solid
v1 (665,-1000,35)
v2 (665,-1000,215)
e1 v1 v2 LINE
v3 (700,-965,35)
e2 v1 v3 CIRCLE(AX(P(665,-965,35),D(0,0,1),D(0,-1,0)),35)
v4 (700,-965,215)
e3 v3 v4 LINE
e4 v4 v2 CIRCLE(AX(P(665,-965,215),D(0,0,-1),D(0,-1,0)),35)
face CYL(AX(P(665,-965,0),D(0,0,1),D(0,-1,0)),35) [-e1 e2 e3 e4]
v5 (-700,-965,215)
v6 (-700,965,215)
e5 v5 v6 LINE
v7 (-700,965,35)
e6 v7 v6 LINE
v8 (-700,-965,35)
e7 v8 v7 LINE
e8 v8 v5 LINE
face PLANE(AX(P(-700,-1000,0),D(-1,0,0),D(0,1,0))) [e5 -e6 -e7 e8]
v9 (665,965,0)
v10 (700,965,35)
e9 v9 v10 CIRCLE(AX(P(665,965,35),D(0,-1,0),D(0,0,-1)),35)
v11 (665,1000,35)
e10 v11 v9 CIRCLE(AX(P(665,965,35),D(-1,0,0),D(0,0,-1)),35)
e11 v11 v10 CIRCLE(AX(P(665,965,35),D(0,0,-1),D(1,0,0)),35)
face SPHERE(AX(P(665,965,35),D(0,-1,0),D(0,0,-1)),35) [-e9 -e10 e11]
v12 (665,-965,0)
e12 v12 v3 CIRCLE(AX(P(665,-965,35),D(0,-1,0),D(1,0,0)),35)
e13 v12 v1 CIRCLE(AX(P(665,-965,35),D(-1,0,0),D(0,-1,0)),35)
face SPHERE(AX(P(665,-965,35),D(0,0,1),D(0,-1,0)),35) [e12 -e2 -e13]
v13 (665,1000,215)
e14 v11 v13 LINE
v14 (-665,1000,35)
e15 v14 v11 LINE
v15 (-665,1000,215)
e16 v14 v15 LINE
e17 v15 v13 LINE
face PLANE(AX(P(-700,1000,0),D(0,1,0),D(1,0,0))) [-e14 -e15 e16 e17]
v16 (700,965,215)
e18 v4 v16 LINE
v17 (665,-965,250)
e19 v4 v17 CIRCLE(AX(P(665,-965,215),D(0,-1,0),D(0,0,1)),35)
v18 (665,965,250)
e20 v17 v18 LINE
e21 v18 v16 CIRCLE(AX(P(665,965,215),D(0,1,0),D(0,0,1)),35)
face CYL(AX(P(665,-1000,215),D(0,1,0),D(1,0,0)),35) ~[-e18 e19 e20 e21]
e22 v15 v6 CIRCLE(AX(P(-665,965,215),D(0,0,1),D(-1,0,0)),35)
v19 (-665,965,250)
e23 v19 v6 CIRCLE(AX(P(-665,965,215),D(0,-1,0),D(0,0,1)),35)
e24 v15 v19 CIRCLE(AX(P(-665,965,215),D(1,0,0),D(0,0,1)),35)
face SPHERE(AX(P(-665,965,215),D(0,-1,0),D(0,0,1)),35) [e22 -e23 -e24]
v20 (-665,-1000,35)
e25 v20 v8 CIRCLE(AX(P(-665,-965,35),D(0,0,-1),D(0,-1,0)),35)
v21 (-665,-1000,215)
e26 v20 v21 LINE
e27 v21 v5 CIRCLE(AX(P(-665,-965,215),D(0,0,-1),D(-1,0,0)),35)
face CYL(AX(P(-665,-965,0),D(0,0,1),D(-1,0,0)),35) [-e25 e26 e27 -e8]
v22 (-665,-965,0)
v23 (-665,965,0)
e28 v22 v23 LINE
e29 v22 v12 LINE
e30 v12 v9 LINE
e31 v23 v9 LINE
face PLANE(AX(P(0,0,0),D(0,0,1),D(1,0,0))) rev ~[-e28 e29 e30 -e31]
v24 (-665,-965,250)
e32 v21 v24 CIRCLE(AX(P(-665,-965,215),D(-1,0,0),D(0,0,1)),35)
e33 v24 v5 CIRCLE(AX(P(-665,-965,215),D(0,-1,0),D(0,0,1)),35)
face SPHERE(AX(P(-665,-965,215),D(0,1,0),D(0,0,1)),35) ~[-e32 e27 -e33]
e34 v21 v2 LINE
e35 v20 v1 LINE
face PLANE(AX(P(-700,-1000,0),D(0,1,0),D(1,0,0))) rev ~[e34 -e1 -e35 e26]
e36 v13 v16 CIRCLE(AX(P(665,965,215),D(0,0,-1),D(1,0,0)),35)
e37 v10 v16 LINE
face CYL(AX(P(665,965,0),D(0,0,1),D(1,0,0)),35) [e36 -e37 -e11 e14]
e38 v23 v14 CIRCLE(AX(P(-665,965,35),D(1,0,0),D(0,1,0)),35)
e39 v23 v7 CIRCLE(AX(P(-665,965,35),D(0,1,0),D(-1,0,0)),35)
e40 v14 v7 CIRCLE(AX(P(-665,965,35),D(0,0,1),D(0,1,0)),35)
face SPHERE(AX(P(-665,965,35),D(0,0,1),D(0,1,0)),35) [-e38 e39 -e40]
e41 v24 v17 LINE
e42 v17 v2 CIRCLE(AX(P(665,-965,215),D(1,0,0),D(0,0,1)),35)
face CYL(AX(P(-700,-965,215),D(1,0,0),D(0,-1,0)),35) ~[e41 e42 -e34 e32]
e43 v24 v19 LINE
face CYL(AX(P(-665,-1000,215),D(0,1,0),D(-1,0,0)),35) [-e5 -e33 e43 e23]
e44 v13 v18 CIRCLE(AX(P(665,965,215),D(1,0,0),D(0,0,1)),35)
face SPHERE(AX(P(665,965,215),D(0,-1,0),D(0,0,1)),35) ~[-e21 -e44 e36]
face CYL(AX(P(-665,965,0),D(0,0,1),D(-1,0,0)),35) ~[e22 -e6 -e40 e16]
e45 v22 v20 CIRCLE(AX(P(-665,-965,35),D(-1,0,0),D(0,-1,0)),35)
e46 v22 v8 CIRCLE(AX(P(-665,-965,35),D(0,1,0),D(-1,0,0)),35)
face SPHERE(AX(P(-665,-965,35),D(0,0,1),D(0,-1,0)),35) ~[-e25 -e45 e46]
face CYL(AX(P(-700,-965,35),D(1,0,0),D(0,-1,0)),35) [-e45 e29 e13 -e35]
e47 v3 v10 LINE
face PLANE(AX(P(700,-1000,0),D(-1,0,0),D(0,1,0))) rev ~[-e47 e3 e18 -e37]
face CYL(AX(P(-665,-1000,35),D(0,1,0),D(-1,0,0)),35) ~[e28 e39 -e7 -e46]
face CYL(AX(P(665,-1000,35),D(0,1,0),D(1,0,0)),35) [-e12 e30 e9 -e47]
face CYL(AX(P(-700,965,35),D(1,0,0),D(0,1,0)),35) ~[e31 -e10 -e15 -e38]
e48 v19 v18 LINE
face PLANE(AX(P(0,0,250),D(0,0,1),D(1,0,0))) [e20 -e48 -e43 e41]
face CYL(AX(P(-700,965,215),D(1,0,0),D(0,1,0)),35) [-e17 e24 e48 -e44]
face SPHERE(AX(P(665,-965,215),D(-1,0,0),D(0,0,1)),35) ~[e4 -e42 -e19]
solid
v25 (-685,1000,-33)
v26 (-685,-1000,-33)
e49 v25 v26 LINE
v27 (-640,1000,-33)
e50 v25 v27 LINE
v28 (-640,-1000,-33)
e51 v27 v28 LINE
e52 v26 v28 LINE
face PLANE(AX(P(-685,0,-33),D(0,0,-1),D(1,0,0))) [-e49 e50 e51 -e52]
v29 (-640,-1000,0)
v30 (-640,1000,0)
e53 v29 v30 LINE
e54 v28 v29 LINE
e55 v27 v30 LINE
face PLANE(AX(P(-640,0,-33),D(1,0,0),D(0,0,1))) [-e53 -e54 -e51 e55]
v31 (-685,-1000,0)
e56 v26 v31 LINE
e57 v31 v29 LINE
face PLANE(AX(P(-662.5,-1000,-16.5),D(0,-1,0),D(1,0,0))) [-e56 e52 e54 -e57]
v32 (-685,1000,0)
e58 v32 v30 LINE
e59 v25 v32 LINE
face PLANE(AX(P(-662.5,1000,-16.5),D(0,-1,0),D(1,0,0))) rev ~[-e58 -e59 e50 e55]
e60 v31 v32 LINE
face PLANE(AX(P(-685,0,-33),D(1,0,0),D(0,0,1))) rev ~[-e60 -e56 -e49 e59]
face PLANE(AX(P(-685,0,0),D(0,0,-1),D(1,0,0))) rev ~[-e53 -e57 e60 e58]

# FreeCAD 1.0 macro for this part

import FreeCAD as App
import Part
import Sketcher
from FreeCAD import Vector


def add_polygon(sketch, points):
    """Adds a closed chain of lines whose ends are joined by coincident constraints."""
    first, n = sketch.GeometryCount, len(points)
    for a, b in zip(points, points[1:] + points[:1]):
        sketch.addGeometry(Part.LineSegment(App.Vector(*a, 0), App.Vector(*b, 0)), False)
    for i in range(n):
        sketch.addConstraint(Sketcher.Constraint("Coincident", first + i, 2, first + (i + 1) % n, 1))

doc = App.newDocument("Part")
body = doc.addObject("PartDesign::Body", "Body")

sketch1 = body.newObject("Sketcher::SketchObject", "Sketch")
sketch1.AttachmentSupport = (doc.getObject("XY_Plane"), [""])
sketch1.MapMode = "FlatFace"
add_polygon(sketch1, [(-700, 1000), (-700, -1000), (700, -1000), (700, 1000)])
sketch1.addConstraint([
    Sketcher.Constraint("Vertical", 0),
    Sketcher.Constraint("Horizontal", 1),
    Sketcher.Constraint("Vertical", 2),
    Sketcher.Constraint("Horizontal", 3),
    Sketcher.Constraint("Symmetric", 0, 2, 2, 2, -1, 1),
    Sketcher.Constraint("DistanceX", 1, 1, 1, 2, 1400.0),
    Sketcher.Constraint("DistanceY", 0, 2, 0, 1, 2000.0),
])
pad1 = body.newObject("PartDesign::Pad", "Pad")
pad1.Profile = sketch1
pad1.Length = 250
doc.recompute()

fillet = body.newObject("PartDesign::Fillet", "Fillet")
fillet.Base = (pad1, ["Edge1"])
fillet.UseAllEdges = True
fillet.Radius = 35
body2 = doc.addObject("PartDesign::Body", "Body001")

sketch2 = body2.newObject("Sketcher::SketchObject", "Sketch001")
sketch2.AttachmentSupport = (doc.getObject("XZ_Plane001"), [""])
sketch2.MapMode = "FlatFace"
add_polygon(sketch2, [(-685, 0), (-685, -33), (-640, -33), (-640, 0)])
sketch2.addConstraint([
    Sketcher.Constraint("Vertical", 0),
    Sketcher.Constraint("Horizontal", 1),
    Sketcher.Constraint("Vertical", 2),
    Sketcher.Constraint("Horizontal", 3),
    Sketcher.Constraint("PointOnObject", 2, 2, -1),
    Sketcher.Constraint("DistanceX", 1, 1, 1, 2, 45.0),
    Sketcher.Constraint("DistanceY", 0, 2, 0, 1, 33.0),
    Sketcher.Constraint("DistanceX", 0, 2, -1, 1, 685.0),
])
pad2 = body2.newObject("PartDesign::Pad", "Pad001")
pad2.Profile = sketch2
pad2.Length = 2000
pad2.Midplane = True

doc.recompute()
